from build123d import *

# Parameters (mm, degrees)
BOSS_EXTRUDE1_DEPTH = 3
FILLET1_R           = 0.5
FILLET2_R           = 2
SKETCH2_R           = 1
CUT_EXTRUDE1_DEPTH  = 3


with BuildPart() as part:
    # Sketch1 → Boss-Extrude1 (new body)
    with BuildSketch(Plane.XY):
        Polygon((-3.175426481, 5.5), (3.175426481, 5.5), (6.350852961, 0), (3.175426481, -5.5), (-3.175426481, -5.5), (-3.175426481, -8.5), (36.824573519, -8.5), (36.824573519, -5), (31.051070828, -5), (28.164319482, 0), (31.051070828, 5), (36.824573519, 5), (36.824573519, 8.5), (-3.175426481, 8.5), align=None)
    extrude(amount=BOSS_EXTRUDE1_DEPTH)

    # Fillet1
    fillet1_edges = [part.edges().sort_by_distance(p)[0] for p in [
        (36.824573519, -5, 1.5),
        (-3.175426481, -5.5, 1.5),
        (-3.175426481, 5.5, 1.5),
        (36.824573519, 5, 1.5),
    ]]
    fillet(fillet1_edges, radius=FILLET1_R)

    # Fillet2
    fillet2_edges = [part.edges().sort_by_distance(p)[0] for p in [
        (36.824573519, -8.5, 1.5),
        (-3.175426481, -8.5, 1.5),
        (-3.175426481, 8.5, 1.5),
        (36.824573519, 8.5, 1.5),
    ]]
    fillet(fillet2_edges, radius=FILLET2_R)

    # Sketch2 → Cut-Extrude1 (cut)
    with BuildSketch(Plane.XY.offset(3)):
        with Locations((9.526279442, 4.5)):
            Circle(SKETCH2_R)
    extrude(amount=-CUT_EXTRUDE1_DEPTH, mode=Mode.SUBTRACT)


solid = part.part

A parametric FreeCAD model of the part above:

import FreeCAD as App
import Part
import Sketcher
from FreeCAD import Vector
Q = App.Units.Quantity


def edges_at(feature, points):
    """Names of the edges that pass closest to the given points."""
    edges = feature.Shape.Edges
    near = lambda p: min(range(len(edges)), key=lambda i: edges[i].distToShape(Part.Vertex(*p))[0])
    return sorted({f"Edge{near(p) + 1}" for p in points})


def add_polygon(sketch, points):
    """Adds a closed chain of lines whose ends are joined by coincident constraints."""
    first, n = sketch.GeometryCount, len(points)
    for a, b in zip(points, points[1:] + points[:1]):
        sketch.addGeometry(Part.LineSegment(App.Vector(*a, 0), App.Vector(*b, 0)), False)
    for i in range(n):
        sketch.addConstraint(Sketcher.Constraint("Coincident", first + i, 2, first + (i + 1) % n, 1))

doc = App.newDocument("Part")
body = doc.addObject("PartDesign::Body", "Body")

# Sketch on XY plane
sketch1 = body.newObject("Sketcher::SketchObject", "Sketch")
sketch1.AttachmentSupport = (doc.getObject("XY_Plane"), [""])
sketch1.MapMode = "FlatFace"
add_polygon(sketch1, [(-3.175426, 5.5), (3.175426, 5.5), (6.350853, 0), (3.175426, -5.5), (-3.175426, -5.5), (-3.175426, -8.5), (36.824574, -8.5), (36.824574, -5), (31.051071, -5), (28.164319, 0), (31.051071, 5), (36.824574, 5), (36.824574, 8.5), (-3.175426, 8.5)])  # lines 0-13
sketch1.addConstraint([
    Sketcher.Constraint("Horizontal", 0),
    Sketcher.Constraint("Horizontal", 3),
    Sketcher.Constraint("Vertical", 4),
    Sketcher.Constraint("Horizontal", 5),
    Sketcher.Constraint("Vertical", 6),
    Sketcher.Constraint("Horizontal", 7),
    Sketcher.Constraint("Horizontal", 10),
    Sketcher.Constraint("Vertical", 11),
    Sketcher.Constraint("Horizontal", 12),
    Sketcher.Constraint("Vertical", 13),
    Sketcher.Constraint("Symmetric", 0, 2, 3, 2, -1, 1),
    Sketcher.Constraint("Symmetric", 7, 2, 9, 2, -1),
    Sketcher.Constraint("Symmetric", 5, 2, 11, 2, -1),
    Sketcher.Constraint("PointOnObject", 1, 2, -1),
    Sketcher.Constraint("PointOnObject", 8, 2, -1),
    Sketcher.Constraint("Parallel", 1, 8),
    Sketcher.Constraint("Parallel", 2, 9),
    Sketcher.Constraint("Vertical", 4, 2, 12, 2),
    Sketcher.Constraint("DistanceX", 5, 1, 5, 2, Q("40 mm")),
    Sketcher.Constraint("DistanceY", 4, 2, 4, 1, Q("3 mm")),
    Sketcher.Constraint("Angle", 1, Q("-60 deg")),
    Sketcher.Constraint("DistanceY", 6, 1, 6, 2, Q("3.5 mm")),
    Sketcher.Constraint("DistanceY", 6, 2, -1, 1, Q("5 mm")),
    Sketcher.Constraint("DistanceX", 0, 1, 0, 2, Q("6.350853 mm")),
    Sketcher.Constraint("DistanceX", 7, 2, 7, 1, Q("5.773503 mm")),
])
pad1 = body.newObject("PartDesign::Pad", "Pad")
pad1.Profile = sketch1
pad1.Length = 3
doc.recompute()

fillet = body.newObject("PartDesign::Fillet", "Fillet")
fillet.Base = (pad1, edges_at(pad1, [
    (36.825, -5, 1.5),
    (-3.175, -5.5, 1.5),
    (-3.175, 5.5, 1.5),
    (36.825, 5, 1.5),
]))
fillet.Radius = 0.5
doc.recompute()

fillet2 = body.newObject("PartDesign::Fillet", "Fillet001")
fillet2.Base = (fillet, edges_at(fillet, [
    (36.825, -8.5, 1.5),
    (-3.175, -8.5, 1.5),
    (-3.175, 8.5, 1.5),
    (36.825, 8.5, 1.5),
]))
fillet2.Radius = 2

# Sketch on XY plane
sketch2 = body.newObject("Sketcher::SketchObject", "Sketch001")
sketch2.AttachmentSupport = (doc.getObject("XY_Plane"), [""])
sketch2.MapMode = "FlatFace"
sketch2.AttachmentOffset = App.Placement(Vector(0, 0, 3), App.Rotation())
sketch2.addGeometry(Part.Circle(Vector(9.526279, 4.5, 0), Vector(0, 0, 1), 1), False)
sketch2.addConstraint([
    Sketcher.Constraint("Diameter", 0, Q("2 mm")),
    Sketcher.Constraint("DistanceY", -1, 1, 0, 3, Q("4.5 mm")),
    Sketcher.Constraint("DistanceX", -1, 1, 0, 3, Q("9.526279 mm")),
])
pocket1 = body.newObject("PartDesign::Pocket", "Pocket")
pocket1.Profile = sketch2
pocket1.Length = 3

doc.recompute()
